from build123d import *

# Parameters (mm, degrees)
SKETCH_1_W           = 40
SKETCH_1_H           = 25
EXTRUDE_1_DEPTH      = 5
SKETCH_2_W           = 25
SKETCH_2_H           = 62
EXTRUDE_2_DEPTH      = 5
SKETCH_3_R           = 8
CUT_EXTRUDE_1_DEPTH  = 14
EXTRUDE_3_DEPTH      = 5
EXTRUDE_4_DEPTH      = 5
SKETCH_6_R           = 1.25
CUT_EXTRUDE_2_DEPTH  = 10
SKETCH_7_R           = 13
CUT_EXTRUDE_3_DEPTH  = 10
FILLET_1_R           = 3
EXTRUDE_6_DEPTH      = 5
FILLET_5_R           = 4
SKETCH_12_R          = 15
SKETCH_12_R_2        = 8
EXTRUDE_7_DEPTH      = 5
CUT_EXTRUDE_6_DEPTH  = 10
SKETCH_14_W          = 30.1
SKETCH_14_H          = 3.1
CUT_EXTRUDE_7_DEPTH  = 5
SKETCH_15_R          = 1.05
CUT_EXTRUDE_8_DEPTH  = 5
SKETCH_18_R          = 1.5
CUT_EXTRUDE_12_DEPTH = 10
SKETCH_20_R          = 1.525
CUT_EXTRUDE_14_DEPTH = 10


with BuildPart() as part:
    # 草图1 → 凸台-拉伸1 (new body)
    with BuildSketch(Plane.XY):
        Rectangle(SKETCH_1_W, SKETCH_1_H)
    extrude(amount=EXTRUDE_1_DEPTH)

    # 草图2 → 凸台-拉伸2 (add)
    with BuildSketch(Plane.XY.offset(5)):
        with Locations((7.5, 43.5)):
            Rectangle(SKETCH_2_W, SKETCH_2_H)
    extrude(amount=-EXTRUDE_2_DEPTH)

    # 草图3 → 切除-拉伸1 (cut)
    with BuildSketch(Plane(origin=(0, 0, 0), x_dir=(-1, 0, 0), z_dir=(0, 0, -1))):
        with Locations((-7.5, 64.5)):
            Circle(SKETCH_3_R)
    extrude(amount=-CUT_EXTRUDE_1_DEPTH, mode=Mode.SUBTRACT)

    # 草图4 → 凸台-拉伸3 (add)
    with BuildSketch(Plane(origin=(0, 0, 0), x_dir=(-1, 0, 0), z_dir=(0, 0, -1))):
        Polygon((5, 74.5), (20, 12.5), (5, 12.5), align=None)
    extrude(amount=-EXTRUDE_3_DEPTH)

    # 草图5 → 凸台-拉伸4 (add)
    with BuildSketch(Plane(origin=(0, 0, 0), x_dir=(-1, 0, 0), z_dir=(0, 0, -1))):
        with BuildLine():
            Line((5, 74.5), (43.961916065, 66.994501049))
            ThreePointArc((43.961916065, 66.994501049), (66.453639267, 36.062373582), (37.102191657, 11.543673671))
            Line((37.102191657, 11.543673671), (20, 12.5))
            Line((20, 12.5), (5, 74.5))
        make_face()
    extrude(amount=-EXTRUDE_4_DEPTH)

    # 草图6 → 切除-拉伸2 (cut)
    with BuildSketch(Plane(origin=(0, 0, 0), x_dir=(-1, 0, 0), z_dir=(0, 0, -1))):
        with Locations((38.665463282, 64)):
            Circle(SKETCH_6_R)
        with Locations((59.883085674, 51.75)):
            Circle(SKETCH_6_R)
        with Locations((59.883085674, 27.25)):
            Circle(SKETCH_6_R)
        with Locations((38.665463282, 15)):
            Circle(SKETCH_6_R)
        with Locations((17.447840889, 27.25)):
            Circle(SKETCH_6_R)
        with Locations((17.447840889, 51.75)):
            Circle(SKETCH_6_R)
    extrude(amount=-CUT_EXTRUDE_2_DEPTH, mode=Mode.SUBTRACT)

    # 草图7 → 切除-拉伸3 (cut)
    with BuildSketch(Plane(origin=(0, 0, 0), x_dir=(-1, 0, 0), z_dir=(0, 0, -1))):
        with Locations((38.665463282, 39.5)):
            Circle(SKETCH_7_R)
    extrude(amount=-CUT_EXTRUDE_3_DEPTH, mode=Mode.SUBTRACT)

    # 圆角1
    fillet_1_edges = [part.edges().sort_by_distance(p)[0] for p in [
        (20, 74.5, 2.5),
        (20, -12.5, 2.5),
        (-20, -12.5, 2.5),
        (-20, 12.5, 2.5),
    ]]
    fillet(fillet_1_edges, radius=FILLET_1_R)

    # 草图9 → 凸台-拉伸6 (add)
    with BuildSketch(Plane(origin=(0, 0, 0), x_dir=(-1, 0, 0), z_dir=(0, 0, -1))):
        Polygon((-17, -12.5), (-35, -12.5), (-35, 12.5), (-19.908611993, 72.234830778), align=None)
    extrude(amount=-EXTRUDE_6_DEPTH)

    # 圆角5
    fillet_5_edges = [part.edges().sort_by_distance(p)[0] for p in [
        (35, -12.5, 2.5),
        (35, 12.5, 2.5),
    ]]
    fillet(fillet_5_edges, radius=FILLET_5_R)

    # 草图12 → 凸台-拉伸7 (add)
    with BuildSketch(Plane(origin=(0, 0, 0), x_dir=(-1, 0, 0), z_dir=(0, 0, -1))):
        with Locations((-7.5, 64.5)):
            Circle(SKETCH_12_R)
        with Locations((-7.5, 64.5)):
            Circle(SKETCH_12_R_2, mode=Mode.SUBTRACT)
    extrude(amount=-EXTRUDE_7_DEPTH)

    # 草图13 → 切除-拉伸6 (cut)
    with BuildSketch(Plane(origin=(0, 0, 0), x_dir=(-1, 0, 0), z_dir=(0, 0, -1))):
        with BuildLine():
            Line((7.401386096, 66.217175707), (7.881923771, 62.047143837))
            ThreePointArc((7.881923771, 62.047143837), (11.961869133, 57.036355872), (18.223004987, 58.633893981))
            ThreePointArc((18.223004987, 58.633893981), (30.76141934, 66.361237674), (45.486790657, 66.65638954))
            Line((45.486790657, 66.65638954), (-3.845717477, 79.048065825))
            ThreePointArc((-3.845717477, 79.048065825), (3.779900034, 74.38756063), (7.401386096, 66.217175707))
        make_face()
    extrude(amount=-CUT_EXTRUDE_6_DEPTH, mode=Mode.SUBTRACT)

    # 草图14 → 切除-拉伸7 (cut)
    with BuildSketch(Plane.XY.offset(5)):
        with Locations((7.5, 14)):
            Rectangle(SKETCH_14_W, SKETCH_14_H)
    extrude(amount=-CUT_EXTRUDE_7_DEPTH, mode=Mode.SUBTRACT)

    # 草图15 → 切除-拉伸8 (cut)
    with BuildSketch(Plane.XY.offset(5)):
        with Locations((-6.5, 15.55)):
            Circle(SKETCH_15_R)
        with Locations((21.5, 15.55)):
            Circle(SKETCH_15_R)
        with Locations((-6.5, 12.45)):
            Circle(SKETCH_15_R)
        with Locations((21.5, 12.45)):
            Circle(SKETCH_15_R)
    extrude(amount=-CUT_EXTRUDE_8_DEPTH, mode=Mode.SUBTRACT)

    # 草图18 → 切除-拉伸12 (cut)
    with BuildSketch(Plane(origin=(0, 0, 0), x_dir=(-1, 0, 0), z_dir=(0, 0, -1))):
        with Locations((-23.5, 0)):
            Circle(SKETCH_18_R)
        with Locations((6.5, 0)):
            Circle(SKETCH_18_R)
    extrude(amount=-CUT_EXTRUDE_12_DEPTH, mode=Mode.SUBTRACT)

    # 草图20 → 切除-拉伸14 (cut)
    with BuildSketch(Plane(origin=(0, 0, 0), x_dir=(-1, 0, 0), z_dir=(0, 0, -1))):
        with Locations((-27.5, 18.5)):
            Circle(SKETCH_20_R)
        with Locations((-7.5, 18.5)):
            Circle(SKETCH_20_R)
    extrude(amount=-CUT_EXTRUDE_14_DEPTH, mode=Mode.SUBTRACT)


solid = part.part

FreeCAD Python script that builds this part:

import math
import FreeCAD as App
import Part
import Sketcher

V = App.Vector
Q = App.Units.Quantity


def edges_at(feature, points):
    """Names of the edges that pass closest to the given points."""
    edges = feature.Shape.Edges
    near = lambda p: min(range(len(edges)), key=lambda i: edges[i].distToShape(Part.Vertex(*p))[0])
    return sorted({f"Edge{near(p) + 1}" for p in points})


def add_polygon(sketch, points):
    """Adds a closed chain of lines whose ends are joined by coincident constraints."""
    first, n = sketch.GeometryCount, len(points)
    for a, b in zip(points, points[1:] + points[:1]):
        sketch.addGeometry(Part.LineSegment(App.Vector(*a, 0), App.Vector(*b, 0)), False)
    for i in range(n):
        sketch.addConstraint(Sketcher.Constraint("Coincident", first + i, 2, first + (i + 1) % n, 1))

doc = App.newDocument("Part")
body = doc.addObject("PartDesign::Body", "Body")

# Sketch on XY plane
sketch1 = body.newObject("Sketcher::SketchObject", "Sketch")
sketch1.AttachmentSupport = (doc.getObject("XY_Plane"), [""])
sketch1.MapMode = "FlatFace"
add_polygon(sketch1, [(-20, 12.5), (-20, -12.5), (20, -12.5), (20, 12.5)])  # lines 0-3
sketch1.addConstraint(Sketcher.Constraint("Vertical", 0))
sketch1.addConstraint(Sketcher.Constraint("Horizontal", 1))
sketch1.addConstraint(Sketcher.Constraint("Vertical", 2))
sketch1.addConstraint(Sketcher.Constraint("Horizontal", 3))
sketch1.addConstraint(Sketcher.Constraint("Symmetric", 0, 2, 2, 2, -1, 1))
sketch1.addConstraint(Sketcher.Constraint("DistanceX", 1, 1, 1, 2, Q("40 mm")))
sketch1.addConstraint(Sketcher.Constraint("DistanceY", 0, 2, 0, 1, Q("25 mm")))
pad1 = body.newObject("PartDesign::Pad", "Pad")
pad1.Profile = sketch1
pad1.Length = 5

# Sketch on XY plane
sketch2 = body.newObject("Sketcher::SketchObject", "Sketch001")
sketch2.AttachmentSupport = (doc.getObject("XY_Plane"), [""])
sketch2.MapMode = "FlatFace"
sketch2.AttachmentOffset = App.Placement(V(0, 0, 5), App.Rotation())
add_polygon(sketch2, [(-5, 74.5), (-5, 12.5), (20, 12.5), (20, 74.5)])  # lines 0-3
sketch2.addConstraint(Sketcher.Constraint("Vertical", 0))
sketch2.addConstraint(Sketcher.Constraint("Horizontal", 1))
sketch2.addConstraint(Sketcher.Constraint("Vertical", 2))
sketch2.addConstraint(Sketcher.Constraint("Horizontal", 3))
sketch2.addConstraint(Sketcher.Constraint("DistanceX", 1, 1, 1, 2, Q("25 mm")))
sketch2.addConstraint(Sketcher.Constraint("DistanceY", 0, 2, 0, 1, Q("62 mm")))
sketch2.addConstraint(Sketcher.Constraint("DistanceX", 0, 2, -1, 1, Q("5 mm")))
sketch2.addConstraint(Sketcher.Constraint("DistanceY", -1, 1, 0, 2, Q("12.5 mm")))
pad2 = body.newObject("PartDesign::Pad", "Pad001")
pad2.Profile = sketch2
pad2.Length = 5
pad2.Reversed = True

# Sketch on XY plane
sketch3 = body.newObject("Sketcher::SketchObject", "Sketch002")
sketch3.AttachmentSupport = (doc.getObject("XY_Plane"), [""])
sketch3.MapMode = "FlatFace"
sketch3.addGeometry(Part.Circle(V(7.5, 64.5, 0), V(0, 0, 1), 8), False)
sketch3.addConstraint(Sketcher.Constraint("Diameter", 0, Q("16 mm")))
sketch3.addConstraint(Sketcher.Constraint("DistanceX", -1, 1, 0, 3, Q("7.5 mm")))
sketch3.addConstraint(Sketcher.Constraint("DistanceY", -1, 1, 0, 3, Q("64.5 mm")))
pocket1 = body.newObject("PartDesign::Pocket", "Pocket")
pocket1.Profile = sketch3
pocket1.Length = 14
pocket1.Reversed = True

# Sketch on XY plane
sketch4 = body.newObject("Sketcher::SketchObject", "Sketch003")
sketch4.AttachmentSupport = (doc.getObject("XY_Plane"), [""])
sketch4.MapMode = "FlatFace"
add_polygon(sketch4, [(-20, 12.5), (-5, 74.5), (-5, 12.5)])  # lines 0-2
sketch4.addConstraint(Sketcher.Constraint("Vertical", 1))
sketch4.addConstraint(Sketcher.Constraint("Horizontal", 2))
sketch4.addConstraint(Sketcher.Constraint("DistanceX", 2, 2, 2, 1, Q("15 mm")))
sketch4.addConstraint(Sketcher.Constraint("DistanceY", 1, 2, 1, 1, Q("62 mm")))
sketch4.addConstraint(Sketcher.Constraint("DistanceX", 0, 2, -1, 1, Q("5 mm")))
sketch4.addConstraint(Sketcher.Constraint("DistanceY", -1, 1, 0, 2, Q("74.5 mm")))
pad3 = body.newObject("PartDesign::Pad", "Pad002")
pad3.Profile = sketch4
pad3.Length = 5

# Sketch on XY plane
sketch5 = body.newObject("Sketcher::SketchObject", "Sketch004")
sketch5.AttachmentSupport = (doc.getObject("XY_Plane"), [""])
sketch5.MapMode = "FlatFace"
sketch5.addGeometry(Part.LineSegment(V(-43.961916, 66.994501, 0), V(-5, 74.5, 0)), False)
sketch5.addGeometry(Part.LineSegment(V(-5, 74.5, 0), V(-20, 12.5, 0)), False)
sketch5.addGeometry(Part.LineSegment(V(-20, 12.5, 0), V(-37.102192, 11.543674, 0)), False)
sketch5.addGeometry(Part.ArcOfCircle(Part.Circle(V(-38.665463, 39.5, 0), V(0, 0, 1), 28), math.radians(100.90371), math.radians(273.200552)), False)
sketch5.addConstraint(Sketcher.Constraint("Coincident", 0, 2, 1, 1))
sketch5.addConstraint(Sketcher.Constraint("Coincident", 1, 2, 2, 1))
sketch5.addConstraint(Sketcher.Constraint("Tangent", 2, 2, 3, 2))
sketch5.addConstraint(Sketcher.Constraint("Tangent", 3, 1, 0, 1))
sketch5.addConstraint(Sketcher.Constraint("Radius", 3, Q("28 mm")))
sketch5.addConstraint(Sketcher.Constraint("DistanceX", 0, 2, -1, 1, Q("5 mm")))
sketch5.addConstraint(Sketcher.Constraint("DistanceX", 1, 2, -1, 1, Q("20 mm")))
sketch5.addConstraint(Sketcher.Constraint("DistanceY", 3, 3, 0, 2, Q("35 mm")))
sketch5.addConstraint(Sketcher.Constraint("DistanceY", 1, 2, 3, 3, Q("27 mm")))
sketch5.addConstraint(Sketcher.Constraint("DistanceY", -1, 1, 3, 3, Q("39.5 mm")))
sketch5.addConstraint(Sketcher.Constraint("DistanceY", -1, 1, 3, 1, Q("66.994501 mm")))
pad4 = body.newObject("PartDesign::Pad", "Pad003")
pad4.Profile = sketch5
pad4.Length = 5

# Sketch on XY plane
sketch6 = body.newObject("Sketcher::SketchObject", "Sketch005")
sketch6.AttachmentSupport = (doc.getObject("XY_Plane"), [""])
sketch6.MapMode = "FlatFace"
sketch6.addGeometry(Part.Circle(V(-38.665463, 64, 0), V(0, 0, 1), 1.25), False)
sketch6.addGeometry(Part.Circle(V(-59.883086, 51.75, 0), V(0, 0, 1), 1.25), False)
sketch6.addGeometry(Part.Circle(V(-59.883086, 27.25, 0), V(0, 0, 1), 1.25), False)
sketch6.addGeometry(Part.Circle(V(-38.665463, 15, 0), V(0, 0, 1), 1.25), False)
sketch6.addGeometry(Part.Circle(V(-17.447841, 27.25, 0), V(0, 0, 1), 1.25), False)
sketch6.addGeometry(Part.Circle(V(-17.447841, 51.75, 0), V(0, 0, 1), 1.25), False)
sketch6.addConstraint(Sketcher.Constraint("Equal", 0, 1))
sketch6.addConstraint(Sketcher.Constraint("Equal", 1, 2))
sketch6.addConstraint(Sketcher.Constraint("Equal", 2, 3))
sketch6.addConstraint(Sketcher.Constraint("Equal", 3, 4))
sketch6.addConstraint(Sketcher.Constraint("Equal", 4, 5))
sketch6.addConstraint(Sketcher.Constraint("Horizontal", 2, 3, 4, 3))
sketch6.addConstraint(Sketcher.Constraint("Horizontal", 1, 3, 5, 3))
sketch6.addConstraint(Sketcher.Constraint("Vertical", 1, 3, 2, 3))
sketch6.addConstraint(Sketcher.Constraint("Vertical", 0, 3, 3, 3))
sketch6.addConstraint(Sketcher.Constraint("Vertical", 4, 3, 5, 3))
sketch6.addConstraint(Sketcher.Constraint("Diameter", 0, Q("2.5 mm")))
sketch6.addConstraint(Sketcher.Constraint("DistanceY", -1, 1, 0, 3, Q("64 mm")))
sketch6.addConstraint(Sketcher.Constraint("DistanceY", -1, 1, 3, 3, Q("15 mm")))
sketch6.addConstraint(Sketcher.Constraint("DistanceY", 2, 3, 1, 3, Q("24.5 mm")))
sketch6.addConstraint(Sketcher.Constraint("DistanceY", -1, 1, 1, 3, Q("51.75 mm")))
sketch6.addConstraint(Sketcher.Constraint("DistanceX", 4, 3, -1, 1, Q("17.447841 mm")))
sketch6.addConstraint(Sketcher.Constraint("DistanceX", 0, 3, -1, 1, Q("38.665463 mm")))
sketch6.addConstraint(Sketcher.Constraint("DistanceX", 1, 3, -1, 1, Q("59.883086 mm")))
pocket2 = body.newObject("PartDesign::Pocket", "Pocket001")
pocket2.Profile = sketch6
pocket2.Length = 10
pocket2.Reversed = True

# Sketch on XY plane
sketch7 = body.newObject("Sketcher::SketchObject", "Sketch006")
sketch7.AttachmentSupport = (doc.getObject("XY_Plane"), [""])
sketch7.MapMode = "FlatFace"
sketch7.addGeometry(Part.Circle(V(-38.665463, 39.5, 0), V(0, 0, 1), 13), False)
sketch7.addConstraint(Sketcher.Constraint("Diameter", 0, Q("26 mm")))
sketch7.addConstraint(Sketcher.Constraint("DistanceY", -1, 1, 0, 3, Q("39.5 mm")))
sketch7.addConstraint(Sketcher.Constraint("DistanceX", 0, 3, -1, 1, Q("38.665463 mm")))
pocket3 = body.newObject("PartDesign::Pocket", "Pocket002")
pocket3.Profile = sketch7
pocket3.Length = 10
pocket3.Reversed = True
doc.recompute()

fillet = body.newObject("PartDesign::Fillet", "Fillet")
fillet.Base = (pocket3, edges_at(pocket3, [
    (20, 74.5, 2.5),
    (20, -12.5, 2.5),
    (-20, -12.5, 2.5),
    (-20, 12.5, 2.5),
]))
fillet.Radius = 3

# Sketch on XY plane
sketch8 = body.newObject("Sketcher::SketchObject", "Sketch007")
sketch8.AttachmentSupport = (doc.getObject("XY_Plane"), [""])
sketch8.MapMode = "FlatFace"
add_polygon(sketch8, [(35, -12.5), (17, -12.5), (19.908612, 72.234831), (35, 12.5)])  # lines 0-3
sketch8.addConstraint(Sketcher.Constraint("Horizontal", 0))
sketch8.addConstraint(Sketcher.Constraint("Vertical", 3))
sketch8.addConstraint(Sketcher.Constraint("DistanceX", 0, 2, 0, 1, Q("18 mm")))
sketch8.addConstraint(Sketcher.Constraint("DistanceY", 3, 2, 3, 1, Q("25 mm")))
sketch8.addConstraint(Sketcher.Constraint("DistanceX", -1, 1, 0, 2, Q("17 mm")))
sketch8.addConstraint(Sketcher.Constraint("DistanceY", 0, 2, -1, 1, Q("12.5 mm")))
sketch8.addConstraint(Sketcher.Constraint("DistanceX", -1, 1, 1, 2, Q("19.908612 mm")))
sketch8.addConstraint(Sketcher.Constraint("DistanceY", -1, 1, 1, 2, Q("72.234831 mm")))
pad5 = body.newObject("PartDesign::Pad", "Pad004")
pad5.Profile = sketch8
pad5.Length = 5
doc.recompute()

fillet2 = body.newObject("PartDesign::Fillet", "Fillet001")
fillet2.Base = (pad5, edges_at(pad5, [(35, -12.5, 2.5), (35, 12.5, 2.5)]))
fillet2.Radius = 4

# Sketch on XY plane
sketch9 = body.newObject("Sketcher::SketchObject", "Sketch008")
sketch9.AttachmentSupport = (doc.getObject("XY_Plane"), [""])
sketch9.MapMode = "FlatFace"
sketch9.addGeometry(Part.Circle(V(7.5, 64.5, 0), V(0, 0, 1), 15), False)
sketch9.addGeometry(Part.Circle(V(7.5, 64.5, 0), V(0, 0, 1), 8), False)
sketch9.addConstraint(Sketcher.Constraint("Coincident", 1, 3, 0, 3))
sketch9.addConstraint(Sketcher.Constraint("Diameter", 0, Q("30 mm")))
sketch9.addConstraint(Sketcher.Constraint("Diameter", 1, Q("16 mm")))
sketch9.addConstraint(Sketcher.Constraint("DistanceX", -1, 1, 0, 3, Q("7.5 mm")))
sketch9.addConstraint(Sketcher.Constraint("DistanceY", -1, 1, 0, 3, Q("64.5 mm")))
pad6 = body.newObject("PartDesign::Pad", "Pad005")
pad6.Profile = sketch9
pad6.Length = 5

# Sketch on XY plane
sketch10 = body.newObject("Sketcher::SketchObject", "Sketch009")
sketch10.AttachmentSupport = (doc.getObject("XY_Plane"), [""])
sketch10.MapMode = "FlatFace"
sketch10.addGeometry(Part.LineSegment(V(-7.401386, 66.217176, 0), V(-7.881924, 62.047144, 0)), False)
sketch10.addGeometry(Part.ArcOfCircle(Part.Circle(V(-13.842478, 62.734014, 0), V(0, 0, 1), 6), math.radians(-136.893755), math.radians(-6.57354)), False)
sketch10.addGeometry(Part.ArcOfCircle(Part.Circle(V(-38.665463, 39.5, 0), V(0, 0, 1), 28), math.radians(43.106245), math.radians(104.100226)), False)
sketch10.addGeometry(Part.LineSegment(V(-45.486791, 66.65639, 0), V(3.845717, 79.048066, 0)), False)
sketch10.addGeometry(Part.ArcOfCircle(Part.Circle(V(7.5, 64.5, 0), V(0, 0, 1), 15), math.radians(104.100226), math.radians(173.42646)), False)
sketch10.addConstraint(Sketcher.Constraint("Tangent", 0, 2, 1, 2))
sketch10.addConstraint(Sketcher.Constraint("Tangent", 1, 1, 2, 1))
sketch10.addConstraint(Sketcher.Constraint("Tangent", 2, 2, 3, 1))
sketch10.addConstraint(Sketcher.Constraint("Tangent", 3, 2, 4, 1))
sketch10.addConstraint(Sketcher.Constraint("Tangent", 4, 2, 0, 1))
sketch10.addConstraint(Sketcher.Constraint("Radius", 1, Q("6 mm")))
sketch10.addConstraint(Sketcher.Constraint("Radius", 2, Q("28 mm")))
sketch10.addConstraint(Sketcher.Constraint("Radius", 4, Q("15 mm")))
sketch10.addConstraint(Sketcher.Constraint("DistanceY", 2, 3, 4, 3, Q("25 mm")))
sketch10.addConstraint(Sketcher.Constraint("DistanceY", -1, 1, 2, 3, Q("39.5 mm")))
sketch10.addConstraint(Sketcher.Constraint("DistanceX", -1, 1, 4, 3, Q("7.5 mm")))
sketch10.addConstraint(Sketcher.Constraint("Distance", 0, Q("4.197628 mm")))
sketch10.addConstraint(Sketcher.Constraint("DistanceX", 1, 3, -1, 1, Q("13.842478 mm")))
pocket4 = body.newObject("PartDesign::Pocket", "Pocket003")
pocket4.Profile = sketch10
pocket4.Length = 10
pocket4.Reversed = True

# Sketch on XY plane
sketch11 = body.newObject("Sketcher::SketchObject", "Sketch010")
sketch11.AttachmentSupport = (doc.getObject("XY_Plane"), [""])
sketch11.MapMode = "FlatFace"
sketch11.AttachmentOffset = App.Placement(V(0, 0, 5), App.Rotation())
add_polygon(sketch11, [(-7.55, 15.55), (-7.55, 12.45), (22.55, 12.45), (22.55, 15.55)])  # lines 0-3
sketch11.addConstraint(Sketcher.Constraint("Vertical", 0))
sketch11.addConstraint(Sketcher.Constraint("Horizontal", 1))
sketch11.addConstraint(Sketcher.Constraint("Vertical", 2))
sketch11.addConstraint(Sketcher.Constraint("Horizontal", 3))
sketch11.addConstraint(Sketcher.Constraint("DistanceX", 1, 1, 1, 2, Q("30.1 mm")))
sketch11.addConstraint(Sketcher.Constraint("DistanceY", 0, 2, 0, 1, Q("3.1 mm")))
sketch11.addConstraint(Sketcher.Constraint("DistanceX", 0, 2, -1, 1, Q("7.55 mm")))
sketch11.addConstraint(Sketcher.Constraint("DistanceY", -1, 1, 0, 2, Q("12.45 mm")))
pocket5 = body.newObject("PartDesign::Pocket", "Pocket004")
pocket5.Profile = sketch11
pocket5.Length = 5

# Sketch on XY plane
sketch12 = body.newObject("Sketcher::SketchObject", "Sketch011")
sketch12.AttachmentSupport = (doc.getObject("XY_Plane"), [""])
sketch12.MapMode = "FlatFace"
sketch12.AttachmentOffset = App.Placement(V(0, 0, 5), App.Rotation())
sketch12.addGeometry(Part.Circle(V(-6.5, 15.55, 0), V(0, 0, 1), 1.05), False)
sketch12.addGeometry(Part.Circle(V(21.5, 15.55, 0), V(0, 0, 1), 1.05), False)
sketch12.addGeometry(Part.Circle(V(-6.5, 12.45, 0), V(0, 0, 1), 1.05), False)
sketch12.addGeometry(Part.Circle(V(21.5, 12.45, 0), V(0, 0, 1), 1.05), False)
sketch12.addConstraint(Sketcher.Constraint("Equal", 0, 1))
sketch12.addConstraint(Sketcher.Constraint("Equal", 1, 2))
sketch12.addConstraint(Sketcher.Constraint("Equal", 2, 3))
sketch12.addConstraint(Sketcher.Constraint("Horizontal", 0, 3, 1, 3))
sketch12.addConstraint(Sketcher.Constraint("Horizontal", 2, 3, 3, 3))
sketch12.addConstraint(Sketcher.Constraint("Vertical", 0, 3, 2, 3))
sketch12.addConstraint(Sketcher.Constraint("Vertical", 1, 3, 3, 3))
sketch12.addConstraint(Sketcher.Constraint("Diameter", 0, Q("2.1 mm")))
sketch12.addConstraint(Sketcher.Constraint("DistanceX", 0, 3, 1, 3, Q("28 mm")))
sketch12.addConstraint(Sketcher.Constraint("DistanceX", 0, 3, -1, 1, Q("6.5 mm")))
sketch12.addConstraint(Sketcher.Constraint("DistanceY", 2, 3, 0, 3, Q("3.1 mm")))
sketch12.addConstraint(Sketcher.Constraint("DistanceY", -1, 1, 0, 3, Q("15.55 mm")))
pocket6 = body.newObject("PartDesign::Pocket", "Pocket005")
pocket6.Profile = sketch12
pocket6.Length = 5

# Sketch on XY plane
sketch13 = body.newObject("Sketcher::SketchObject", "Sketch012")
sketch13.AttachmentSupport = (doc.getObject("XY_Plane"), [""])
sketch13.MapMode = "FlatFace"
sketch13.addGeometry(Part.Circle(V(23.5, 0, 0), V(0, 0, 1), 1.5), False)
sketch13.addGeometry(Part.Circle(V(-6.5, 0, 0), V(0, 0, 1), 1.5), False)
sketch13.addConstraint(Sketcher.Constraint("Equal", 0, 1))
sketch13.addConstraint(Sketcher.Constraint("PointOnObject", 0, 3, -1))
sketch13.addConstraint(Sketcher.Constraint("PointOnObject", 1, 3, -1))
sketch13.addConstraint(Sketcher.Constraint("Diameter", 0, Q("3 mm")))
sketch13.addConstraint(Sketcher.Constraint("DistanceX", 1, 3, 0, 3, Q("30 mm")))
sketch13.addConstraint(Sketcher.Constraint("DistanceX", -1, 1, 0, 3, Q("23.5 mm")))
pocket7 = body.newObject("PartDesign::Pocket", "Pocket006")
pocket7.Profile = sketch13
pocket7.Length = 10
pocket7.Reversed = True

# Sketch on XY plane
sketch14 = body.newObject("Sketcher::SketchObject", "Sketch013")
sketch14.AttachmentSupport = (doc.getObject("XY_Plane"), [""])
sketch14.MapMode = "FlatFace"
sketch14.addGeometry(Part.Circle(V(27.5, 18.5, 0), V(0, 0, 1), 1.525), False)
sketch14.addGeometry(Part.Circle(V(7.5, 18.5, 0), V(0, 0, 1), 1.525), False)
sketch14.addConstraint(Sketcher.Constraint("Equal", 0, 1))
sketch14.addConstraint(Sketcher.Constraint("Horizontal", 0, 3, 1, 3))
sketch14.addConstraint(Sketcher.Constraint("Diameter", 0, Q("3.05 mm")))
sketch14.addConstraint(Sketcher.Constraint("DistanceX", 1, 3, 0, 3, Q("20 mm")))
sketch14.addConstraint(Sketcher.Constraint("DistanceX", -1, 1, 0, 3, Q("27.5 mm")))
sketch14.addConstraint(Sketcher.Constraint("DistanceY", -1, 1, 0, 3, Q("18.5 mm")))
pocket8 = body.newObject("PartDesign::Pocket", "Pocket007")
pocket8.Profile = sketch14
pocket8.Length = 10
pocket8.Reversed = True

doc.recompute()
